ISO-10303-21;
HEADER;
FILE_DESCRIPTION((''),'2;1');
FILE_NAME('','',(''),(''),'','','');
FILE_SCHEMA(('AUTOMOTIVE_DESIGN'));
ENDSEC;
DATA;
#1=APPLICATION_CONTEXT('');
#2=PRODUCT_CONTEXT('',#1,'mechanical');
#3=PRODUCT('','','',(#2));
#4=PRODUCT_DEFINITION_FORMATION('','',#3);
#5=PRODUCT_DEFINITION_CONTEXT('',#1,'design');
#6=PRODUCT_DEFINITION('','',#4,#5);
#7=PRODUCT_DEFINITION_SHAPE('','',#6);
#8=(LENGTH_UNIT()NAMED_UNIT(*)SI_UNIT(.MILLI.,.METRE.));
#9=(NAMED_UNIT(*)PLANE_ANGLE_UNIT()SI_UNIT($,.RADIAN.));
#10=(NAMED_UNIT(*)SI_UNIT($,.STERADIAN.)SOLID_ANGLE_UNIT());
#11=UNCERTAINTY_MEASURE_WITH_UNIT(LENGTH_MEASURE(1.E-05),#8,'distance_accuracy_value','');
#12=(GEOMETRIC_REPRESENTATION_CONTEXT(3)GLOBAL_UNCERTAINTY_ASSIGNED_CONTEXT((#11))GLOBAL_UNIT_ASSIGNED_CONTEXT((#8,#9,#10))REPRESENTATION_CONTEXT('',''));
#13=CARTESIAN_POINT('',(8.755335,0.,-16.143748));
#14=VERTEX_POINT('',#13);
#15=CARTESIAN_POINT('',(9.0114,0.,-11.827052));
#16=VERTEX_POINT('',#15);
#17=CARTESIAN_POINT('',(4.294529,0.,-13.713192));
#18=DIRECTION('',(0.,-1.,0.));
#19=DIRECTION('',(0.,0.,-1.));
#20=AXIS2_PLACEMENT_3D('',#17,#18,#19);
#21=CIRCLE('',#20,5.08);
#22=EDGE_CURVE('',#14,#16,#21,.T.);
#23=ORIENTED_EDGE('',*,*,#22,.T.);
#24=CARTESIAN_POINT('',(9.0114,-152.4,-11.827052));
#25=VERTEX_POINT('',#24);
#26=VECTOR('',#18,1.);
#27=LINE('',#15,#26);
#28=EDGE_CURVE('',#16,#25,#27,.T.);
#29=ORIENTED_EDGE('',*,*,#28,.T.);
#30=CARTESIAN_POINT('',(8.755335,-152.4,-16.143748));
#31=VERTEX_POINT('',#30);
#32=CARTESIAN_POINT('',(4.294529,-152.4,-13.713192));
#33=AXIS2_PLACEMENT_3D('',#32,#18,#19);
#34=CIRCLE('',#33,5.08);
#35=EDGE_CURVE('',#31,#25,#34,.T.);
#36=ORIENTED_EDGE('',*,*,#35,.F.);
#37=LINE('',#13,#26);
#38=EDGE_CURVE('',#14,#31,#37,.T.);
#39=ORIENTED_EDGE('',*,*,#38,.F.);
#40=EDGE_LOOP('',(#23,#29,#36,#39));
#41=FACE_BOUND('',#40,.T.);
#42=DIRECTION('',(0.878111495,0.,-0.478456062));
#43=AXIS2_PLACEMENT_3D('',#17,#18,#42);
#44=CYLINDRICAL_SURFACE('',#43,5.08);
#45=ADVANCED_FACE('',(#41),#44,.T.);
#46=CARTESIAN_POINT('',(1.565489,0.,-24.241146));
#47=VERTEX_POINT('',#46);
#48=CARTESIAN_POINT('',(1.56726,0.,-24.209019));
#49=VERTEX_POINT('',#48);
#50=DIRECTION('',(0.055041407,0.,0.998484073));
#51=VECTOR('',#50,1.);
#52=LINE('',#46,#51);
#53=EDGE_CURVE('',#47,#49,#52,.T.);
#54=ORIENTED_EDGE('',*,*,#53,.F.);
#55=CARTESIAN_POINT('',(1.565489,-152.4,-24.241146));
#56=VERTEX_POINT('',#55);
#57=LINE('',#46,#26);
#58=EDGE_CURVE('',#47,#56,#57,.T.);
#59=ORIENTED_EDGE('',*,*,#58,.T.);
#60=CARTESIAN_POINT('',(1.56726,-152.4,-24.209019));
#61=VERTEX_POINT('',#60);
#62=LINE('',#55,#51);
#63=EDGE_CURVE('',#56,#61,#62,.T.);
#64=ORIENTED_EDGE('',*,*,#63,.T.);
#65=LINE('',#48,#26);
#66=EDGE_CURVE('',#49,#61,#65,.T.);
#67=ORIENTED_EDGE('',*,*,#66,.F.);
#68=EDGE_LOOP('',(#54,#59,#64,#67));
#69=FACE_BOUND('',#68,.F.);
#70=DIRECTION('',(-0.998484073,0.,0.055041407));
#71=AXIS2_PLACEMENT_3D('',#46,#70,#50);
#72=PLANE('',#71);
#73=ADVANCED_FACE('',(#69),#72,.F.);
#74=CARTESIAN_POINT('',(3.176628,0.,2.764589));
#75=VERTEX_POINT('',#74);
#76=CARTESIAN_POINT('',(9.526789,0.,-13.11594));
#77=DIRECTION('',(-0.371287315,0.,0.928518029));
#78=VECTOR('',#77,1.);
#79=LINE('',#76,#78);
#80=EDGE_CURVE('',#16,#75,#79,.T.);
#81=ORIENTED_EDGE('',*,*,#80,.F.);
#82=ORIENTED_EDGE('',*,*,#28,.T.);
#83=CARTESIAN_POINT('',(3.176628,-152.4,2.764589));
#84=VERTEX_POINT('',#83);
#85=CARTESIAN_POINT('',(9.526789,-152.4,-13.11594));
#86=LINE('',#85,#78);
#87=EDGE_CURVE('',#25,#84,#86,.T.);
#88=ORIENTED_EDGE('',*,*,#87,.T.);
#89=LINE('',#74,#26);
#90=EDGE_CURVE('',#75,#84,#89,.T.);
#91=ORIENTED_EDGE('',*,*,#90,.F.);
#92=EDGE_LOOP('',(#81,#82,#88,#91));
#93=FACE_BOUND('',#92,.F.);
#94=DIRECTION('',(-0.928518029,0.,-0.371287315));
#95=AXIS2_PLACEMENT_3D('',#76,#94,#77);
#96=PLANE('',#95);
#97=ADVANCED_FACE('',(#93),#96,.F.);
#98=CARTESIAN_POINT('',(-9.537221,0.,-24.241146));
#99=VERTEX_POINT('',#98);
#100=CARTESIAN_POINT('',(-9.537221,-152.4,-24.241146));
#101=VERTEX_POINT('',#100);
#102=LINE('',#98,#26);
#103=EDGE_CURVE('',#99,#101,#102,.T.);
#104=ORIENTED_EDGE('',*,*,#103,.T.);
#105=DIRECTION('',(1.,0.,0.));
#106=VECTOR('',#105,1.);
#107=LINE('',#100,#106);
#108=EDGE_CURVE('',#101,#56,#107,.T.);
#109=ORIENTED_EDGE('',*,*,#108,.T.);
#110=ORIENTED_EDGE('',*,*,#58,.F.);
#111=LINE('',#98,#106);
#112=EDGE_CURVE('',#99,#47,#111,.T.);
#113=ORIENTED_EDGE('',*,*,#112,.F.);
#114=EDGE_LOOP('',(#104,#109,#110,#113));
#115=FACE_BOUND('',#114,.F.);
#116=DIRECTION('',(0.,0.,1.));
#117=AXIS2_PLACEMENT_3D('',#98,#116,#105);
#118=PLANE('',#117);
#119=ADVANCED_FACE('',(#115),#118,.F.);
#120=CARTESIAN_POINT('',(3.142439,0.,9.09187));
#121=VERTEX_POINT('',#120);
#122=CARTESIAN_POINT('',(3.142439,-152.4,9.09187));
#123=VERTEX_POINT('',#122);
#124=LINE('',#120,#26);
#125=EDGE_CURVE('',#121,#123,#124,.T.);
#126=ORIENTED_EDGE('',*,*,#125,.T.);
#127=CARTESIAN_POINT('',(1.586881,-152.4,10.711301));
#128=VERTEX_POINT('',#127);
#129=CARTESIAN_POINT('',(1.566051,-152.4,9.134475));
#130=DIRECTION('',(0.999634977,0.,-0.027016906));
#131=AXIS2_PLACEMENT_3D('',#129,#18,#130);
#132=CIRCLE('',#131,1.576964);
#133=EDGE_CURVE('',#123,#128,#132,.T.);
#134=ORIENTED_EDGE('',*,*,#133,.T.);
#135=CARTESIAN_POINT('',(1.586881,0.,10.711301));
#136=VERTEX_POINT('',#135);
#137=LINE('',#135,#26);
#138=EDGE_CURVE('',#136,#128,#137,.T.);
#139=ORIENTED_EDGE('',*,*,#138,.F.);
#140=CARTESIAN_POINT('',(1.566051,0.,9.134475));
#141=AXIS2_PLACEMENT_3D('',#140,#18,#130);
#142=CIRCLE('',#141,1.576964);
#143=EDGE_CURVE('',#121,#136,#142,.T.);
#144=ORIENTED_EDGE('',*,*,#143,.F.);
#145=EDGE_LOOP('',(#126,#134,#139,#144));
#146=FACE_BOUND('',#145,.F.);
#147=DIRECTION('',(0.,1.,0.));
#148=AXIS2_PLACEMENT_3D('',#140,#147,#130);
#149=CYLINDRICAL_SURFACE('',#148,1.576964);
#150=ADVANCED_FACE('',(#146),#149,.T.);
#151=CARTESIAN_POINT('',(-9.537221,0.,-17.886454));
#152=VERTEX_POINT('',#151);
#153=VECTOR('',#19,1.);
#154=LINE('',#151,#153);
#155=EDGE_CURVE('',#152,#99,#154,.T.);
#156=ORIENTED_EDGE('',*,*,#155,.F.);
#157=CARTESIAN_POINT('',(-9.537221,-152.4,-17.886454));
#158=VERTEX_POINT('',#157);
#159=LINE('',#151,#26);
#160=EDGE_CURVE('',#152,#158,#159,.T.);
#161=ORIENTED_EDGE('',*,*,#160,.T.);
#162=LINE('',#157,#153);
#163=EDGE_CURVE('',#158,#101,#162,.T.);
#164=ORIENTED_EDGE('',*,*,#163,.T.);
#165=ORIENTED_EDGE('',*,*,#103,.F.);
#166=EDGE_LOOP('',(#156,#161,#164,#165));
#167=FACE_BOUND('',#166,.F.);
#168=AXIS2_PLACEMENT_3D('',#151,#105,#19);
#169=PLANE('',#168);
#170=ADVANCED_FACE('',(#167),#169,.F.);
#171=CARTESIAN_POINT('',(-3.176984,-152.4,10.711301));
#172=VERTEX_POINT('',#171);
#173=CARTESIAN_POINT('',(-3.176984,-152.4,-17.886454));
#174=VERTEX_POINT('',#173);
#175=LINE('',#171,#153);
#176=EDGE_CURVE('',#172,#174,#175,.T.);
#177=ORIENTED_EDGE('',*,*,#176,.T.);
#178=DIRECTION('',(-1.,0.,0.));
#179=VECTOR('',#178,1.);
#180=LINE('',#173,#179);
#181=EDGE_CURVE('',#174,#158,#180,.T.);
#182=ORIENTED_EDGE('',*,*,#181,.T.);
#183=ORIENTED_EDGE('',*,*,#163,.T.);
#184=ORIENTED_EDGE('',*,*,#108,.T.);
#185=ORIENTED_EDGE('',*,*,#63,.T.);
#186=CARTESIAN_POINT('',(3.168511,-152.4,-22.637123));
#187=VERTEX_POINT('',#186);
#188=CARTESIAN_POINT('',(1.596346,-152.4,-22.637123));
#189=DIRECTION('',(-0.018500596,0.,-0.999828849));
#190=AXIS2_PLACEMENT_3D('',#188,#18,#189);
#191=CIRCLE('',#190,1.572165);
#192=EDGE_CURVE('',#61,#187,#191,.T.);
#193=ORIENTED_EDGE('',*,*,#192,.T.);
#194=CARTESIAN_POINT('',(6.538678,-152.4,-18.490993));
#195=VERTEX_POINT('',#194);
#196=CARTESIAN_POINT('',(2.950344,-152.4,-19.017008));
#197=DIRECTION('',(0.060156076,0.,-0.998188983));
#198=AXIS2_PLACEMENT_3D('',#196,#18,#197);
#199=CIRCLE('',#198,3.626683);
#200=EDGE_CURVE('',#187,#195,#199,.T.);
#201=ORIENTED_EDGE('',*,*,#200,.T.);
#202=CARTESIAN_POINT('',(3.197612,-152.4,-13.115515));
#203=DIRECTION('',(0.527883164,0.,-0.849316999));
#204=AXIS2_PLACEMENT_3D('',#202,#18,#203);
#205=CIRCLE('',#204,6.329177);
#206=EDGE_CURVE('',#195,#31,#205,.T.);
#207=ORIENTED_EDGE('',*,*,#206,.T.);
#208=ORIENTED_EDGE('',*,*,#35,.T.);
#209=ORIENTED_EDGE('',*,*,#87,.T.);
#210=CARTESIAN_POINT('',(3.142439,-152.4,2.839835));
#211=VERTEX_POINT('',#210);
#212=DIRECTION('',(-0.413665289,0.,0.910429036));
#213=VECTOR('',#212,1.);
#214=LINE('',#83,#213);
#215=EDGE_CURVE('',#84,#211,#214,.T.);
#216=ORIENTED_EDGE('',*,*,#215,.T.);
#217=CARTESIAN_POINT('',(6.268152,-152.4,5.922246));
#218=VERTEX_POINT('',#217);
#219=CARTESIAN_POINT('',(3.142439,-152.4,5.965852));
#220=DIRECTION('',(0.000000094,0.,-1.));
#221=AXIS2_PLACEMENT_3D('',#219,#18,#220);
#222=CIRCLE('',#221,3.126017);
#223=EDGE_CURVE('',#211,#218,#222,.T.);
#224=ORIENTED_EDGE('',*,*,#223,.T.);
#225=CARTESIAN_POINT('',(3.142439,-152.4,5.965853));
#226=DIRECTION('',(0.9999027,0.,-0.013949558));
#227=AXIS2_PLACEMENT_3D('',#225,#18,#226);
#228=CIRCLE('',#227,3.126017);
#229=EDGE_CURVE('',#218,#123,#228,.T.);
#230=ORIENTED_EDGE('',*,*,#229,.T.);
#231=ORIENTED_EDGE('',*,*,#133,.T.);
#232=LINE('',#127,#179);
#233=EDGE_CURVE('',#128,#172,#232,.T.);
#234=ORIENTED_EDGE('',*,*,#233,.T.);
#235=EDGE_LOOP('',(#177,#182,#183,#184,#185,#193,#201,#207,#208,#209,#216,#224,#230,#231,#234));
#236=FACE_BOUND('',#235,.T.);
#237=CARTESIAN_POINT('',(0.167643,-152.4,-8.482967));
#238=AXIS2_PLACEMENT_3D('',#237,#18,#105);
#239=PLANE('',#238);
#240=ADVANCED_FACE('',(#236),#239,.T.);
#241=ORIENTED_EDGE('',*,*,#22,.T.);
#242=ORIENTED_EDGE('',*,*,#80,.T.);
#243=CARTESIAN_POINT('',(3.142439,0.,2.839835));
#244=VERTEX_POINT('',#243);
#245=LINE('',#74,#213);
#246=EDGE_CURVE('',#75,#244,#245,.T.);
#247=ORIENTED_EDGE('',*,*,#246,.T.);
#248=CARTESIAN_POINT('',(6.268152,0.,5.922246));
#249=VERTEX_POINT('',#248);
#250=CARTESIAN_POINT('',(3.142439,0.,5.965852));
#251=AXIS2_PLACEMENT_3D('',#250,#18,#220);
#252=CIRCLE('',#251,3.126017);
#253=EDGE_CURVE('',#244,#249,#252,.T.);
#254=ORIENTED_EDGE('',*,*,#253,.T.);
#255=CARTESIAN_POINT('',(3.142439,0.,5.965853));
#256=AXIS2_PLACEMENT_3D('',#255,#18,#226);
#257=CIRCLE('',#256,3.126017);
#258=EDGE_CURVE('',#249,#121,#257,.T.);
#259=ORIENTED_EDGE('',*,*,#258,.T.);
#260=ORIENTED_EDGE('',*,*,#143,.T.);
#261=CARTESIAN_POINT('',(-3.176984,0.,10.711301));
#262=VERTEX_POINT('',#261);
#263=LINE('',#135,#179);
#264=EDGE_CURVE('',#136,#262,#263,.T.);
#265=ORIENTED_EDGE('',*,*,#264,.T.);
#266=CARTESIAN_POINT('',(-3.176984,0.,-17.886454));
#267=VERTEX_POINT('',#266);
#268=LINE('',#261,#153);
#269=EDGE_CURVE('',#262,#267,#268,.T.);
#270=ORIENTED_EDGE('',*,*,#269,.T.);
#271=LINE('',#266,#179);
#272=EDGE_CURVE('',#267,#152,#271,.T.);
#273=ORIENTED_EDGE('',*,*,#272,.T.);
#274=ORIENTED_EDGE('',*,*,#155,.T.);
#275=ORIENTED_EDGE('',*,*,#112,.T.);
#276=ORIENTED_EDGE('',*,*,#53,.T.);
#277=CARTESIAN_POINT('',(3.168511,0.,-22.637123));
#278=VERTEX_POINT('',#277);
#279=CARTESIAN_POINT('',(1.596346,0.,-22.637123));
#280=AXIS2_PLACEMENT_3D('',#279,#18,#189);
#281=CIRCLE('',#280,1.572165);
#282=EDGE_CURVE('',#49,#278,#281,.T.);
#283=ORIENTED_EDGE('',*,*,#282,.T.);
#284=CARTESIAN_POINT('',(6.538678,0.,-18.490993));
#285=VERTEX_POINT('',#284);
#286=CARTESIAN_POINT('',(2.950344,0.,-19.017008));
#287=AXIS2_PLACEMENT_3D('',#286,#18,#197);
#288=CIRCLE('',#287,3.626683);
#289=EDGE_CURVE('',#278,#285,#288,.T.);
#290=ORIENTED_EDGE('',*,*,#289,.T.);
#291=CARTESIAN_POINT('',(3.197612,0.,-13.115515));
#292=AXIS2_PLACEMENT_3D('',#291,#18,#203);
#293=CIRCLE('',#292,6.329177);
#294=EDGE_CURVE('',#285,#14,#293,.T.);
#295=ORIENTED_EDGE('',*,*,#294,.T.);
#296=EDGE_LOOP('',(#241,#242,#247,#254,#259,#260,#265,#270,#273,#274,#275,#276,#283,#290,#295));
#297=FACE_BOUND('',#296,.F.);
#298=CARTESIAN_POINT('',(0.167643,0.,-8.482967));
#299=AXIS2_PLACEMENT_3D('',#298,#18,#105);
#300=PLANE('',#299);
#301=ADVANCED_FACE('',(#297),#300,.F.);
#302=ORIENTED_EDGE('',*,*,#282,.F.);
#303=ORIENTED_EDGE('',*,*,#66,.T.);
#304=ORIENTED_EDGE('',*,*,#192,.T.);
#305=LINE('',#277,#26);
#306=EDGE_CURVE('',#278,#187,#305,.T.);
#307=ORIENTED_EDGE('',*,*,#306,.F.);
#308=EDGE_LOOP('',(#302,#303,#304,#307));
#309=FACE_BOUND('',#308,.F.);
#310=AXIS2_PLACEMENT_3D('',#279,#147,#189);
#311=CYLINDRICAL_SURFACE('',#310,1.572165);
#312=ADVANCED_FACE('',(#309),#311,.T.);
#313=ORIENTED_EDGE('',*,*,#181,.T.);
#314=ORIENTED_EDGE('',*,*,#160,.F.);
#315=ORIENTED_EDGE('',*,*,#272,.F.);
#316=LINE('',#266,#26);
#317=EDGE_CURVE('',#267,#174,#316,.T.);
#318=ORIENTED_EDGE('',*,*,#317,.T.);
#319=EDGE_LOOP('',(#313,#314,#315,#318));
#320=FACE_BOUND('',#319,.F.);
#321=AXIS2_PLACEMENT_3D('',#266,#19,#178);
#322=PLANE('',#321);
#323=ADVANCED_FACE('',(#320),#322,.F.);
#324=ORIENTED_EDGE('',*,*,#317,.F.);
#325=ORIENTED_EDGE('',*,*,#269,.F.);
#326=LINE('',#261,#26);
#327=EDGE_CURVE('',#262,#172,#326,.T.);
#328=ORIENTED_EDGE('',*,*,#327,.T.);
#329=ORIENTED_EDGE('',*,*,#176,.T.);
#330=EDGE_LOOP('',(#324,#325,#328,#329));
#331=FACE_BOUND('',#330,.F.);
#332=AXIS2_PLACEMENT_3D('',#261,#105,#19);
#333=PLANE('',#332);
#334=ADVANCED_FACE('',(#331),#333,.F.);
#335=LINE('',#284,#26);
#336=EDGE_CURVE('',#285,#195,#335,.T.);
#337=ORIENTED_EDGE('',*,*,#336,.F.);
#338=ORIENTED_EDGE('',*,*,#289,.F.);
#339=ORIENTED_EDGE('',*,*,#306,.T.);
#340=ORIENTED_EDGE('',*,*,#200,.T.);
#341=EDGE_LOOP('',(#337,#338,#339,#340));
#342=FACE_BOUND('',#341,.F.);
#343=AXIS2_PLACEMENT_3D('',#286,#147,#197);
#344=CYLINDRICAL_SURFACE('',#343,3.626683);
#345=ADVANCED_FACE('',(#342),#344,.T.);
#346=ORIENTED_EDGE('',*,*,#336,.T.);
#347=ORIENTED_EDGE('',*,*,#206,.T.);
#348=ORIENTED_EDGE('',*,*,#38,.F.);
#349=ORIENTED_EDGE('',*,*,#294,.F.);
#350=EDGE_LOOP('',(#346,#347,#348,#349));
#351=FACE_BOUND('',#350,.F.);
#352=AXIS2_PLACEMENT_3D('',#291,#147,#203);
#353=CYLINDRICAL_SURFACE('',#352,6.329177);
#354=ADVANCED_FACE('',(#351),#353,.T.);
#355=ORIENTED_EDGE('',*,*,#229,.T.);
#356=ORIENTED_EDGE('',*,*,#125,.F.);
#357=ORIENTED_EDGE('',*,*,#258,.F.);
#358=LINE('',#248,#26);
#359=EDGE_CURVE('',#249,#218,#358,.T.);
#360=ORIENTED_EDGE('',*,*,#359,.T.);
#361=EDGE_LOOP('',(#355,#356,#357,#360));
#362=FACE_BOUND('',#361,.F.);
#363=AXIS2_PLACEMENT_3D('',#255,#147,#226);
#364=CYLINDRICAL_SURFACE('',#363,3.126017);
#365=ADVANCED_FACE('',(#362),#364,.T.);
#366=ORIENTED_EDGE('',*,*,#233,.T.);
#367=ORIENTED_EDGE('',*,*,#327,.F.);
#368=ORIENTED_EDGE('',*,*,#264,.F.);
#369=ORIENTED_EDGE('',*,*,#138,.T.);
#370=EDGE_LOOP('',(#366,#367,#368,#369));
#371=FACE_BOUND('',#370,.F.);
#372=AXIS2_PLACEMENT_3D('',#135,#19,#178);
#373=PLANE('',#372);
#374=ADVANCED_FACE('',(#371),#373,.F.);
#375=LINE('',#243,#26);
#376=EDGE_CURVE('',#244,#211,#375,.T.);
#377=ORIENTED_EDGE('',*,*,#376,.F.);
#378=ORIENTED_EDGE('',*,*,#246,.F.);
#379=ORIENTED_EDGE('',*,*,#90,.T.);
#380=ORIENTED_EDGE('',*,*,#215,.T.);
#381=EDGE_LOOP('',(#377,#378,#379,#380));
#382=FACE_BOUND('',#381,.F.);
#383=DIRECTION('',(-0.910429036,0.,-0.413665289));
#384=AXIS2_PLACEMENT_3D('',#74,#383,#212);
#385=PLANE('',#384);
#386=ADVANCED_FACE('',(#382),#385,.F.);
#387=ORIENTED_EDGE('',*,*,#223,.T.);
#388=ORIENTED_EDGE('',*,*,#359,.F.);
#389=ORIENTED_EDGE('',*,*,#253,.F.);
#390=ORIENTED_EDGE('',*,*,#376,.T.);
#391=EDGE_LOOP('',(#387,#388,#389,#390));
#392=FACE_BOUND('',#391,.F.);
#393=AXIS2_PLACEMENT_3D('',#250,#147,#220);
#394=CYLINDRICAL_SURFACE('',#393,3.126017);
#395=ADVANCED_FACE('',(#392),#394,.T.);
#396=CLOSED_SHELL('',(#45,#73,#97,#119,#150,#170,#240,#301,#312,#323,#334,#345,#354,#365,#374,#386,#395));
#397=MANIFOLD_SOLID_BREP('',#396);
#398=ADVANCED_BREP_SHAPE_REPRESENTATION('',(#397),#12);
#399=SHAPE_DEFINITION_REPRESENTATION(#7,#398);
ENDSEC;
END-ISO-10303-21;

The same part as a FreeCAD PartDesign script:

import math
import FreeCAD as App
import Part
import Sketcher

V = App.Vector
Q = App.Units.Quantity


def edges_at(feature, points):
    """Names of the edges that pass closest to the given points."""
    edges = feature.Shape.Edges
    near = lambda p: min(range(len(edges)), key=lambda i: edges[i].distToShape(Part.Vertex(*p))[0])
    return sorted({f"Edge{near(p) + 1}" for p in points})

doc = App.newDocument("Part")
params = doc.addObject("Spreadsheet::Sheet", "Params")
for row, (alias, value) in enumerate([
    ("pad1_length", "6 in"),
    ("fillet_radius", "0.2 in"),
], start=1):
    params.set(f"A{row}", alias)
    params.set(f"B{row}", "=" + value)
    params.setAlias(f"B{row}", alias)

body = doc.addObject("PartDesign::Body", "Body")

# Sketch on XZ plane
sketch1 = doc.addObject("Sketcher::SketchObject", "Sketch")
body.addObject(sketch1)
sketch1.AttachmentSupport = (doc.XZ_Plane, [""])
sketch1.MapMode = "FlatFace"
sketch1.addGeometry(Part.LineSegment(V(-9.537, -24.241, 0), V(1.565, -24.241, 0)), False)
sketch1.addGeometry(Part.LineSegment(V(1.565, -24.241, 0), V(1.567, -24.209, 0)), False)
sketch1.addGeometry(Part.ArcOfCircle(Part.Circle(V(1.596, -22.637, 0), V(0, 0, 1), 1.572), math.radians(-91), math.radians(0)), False)
sketch1.addGeometry(Part.ArcOfCircle(Part.Circle(V(2.95, -19.017, 0), V(0, 0, 1), 3.627), math.radians(-87), math.radians(8)), False)
sketch1.addGeometry(Part.ArcOfCircle(Part.Circle(V(3.198, -13.116, 0), V(0, 0, 1), 6.329), math.radians(-58), math.radians(0)), False)
sketch1.addGeometry(Part.LineSegment(V(9.527, -13.116, 0), V(3.177, 2.765, 0)), False)
sketch1.addGeometry(Part.LineSegment(V(3.177, 2.765, 0), V(3.142, 2.84, 0)), False)
sketch1.addGeometry(Part.ArcOfCircle(Part.Circle(V(3.142, 5.966, 0), V(0, 0, 1), 3.126), math.radians(-90), math.radians(-1)), False)
sketch1.addGeometry(Part.ArcOfCircle(Part.Circle(V(3.142, 5.966, 0), V(0, 0, 1), 3.126), math.radians(-1), math.radians(90)), False)
sketch1.addGeometry(Part.ArcOfCircle(Part.Circle(V(1.566, 9.134, 0), V(0, 0, 1), 1.577), math.radians(-2), math.radians(89)), False)
sketch1.addGeometry(Part.LineSegment(V(1.587, 10.711, 0), V(-3.177, 10.711, 0)), False)
sketch1.addGeometry(Part.LineSegment(V(-3.177, 10.711, 0), V(-3.177, -17.886, 0)), False)
sketch1.addGeometry(Part.LineSegment(V(-3.177, -17.886, 0), V(-9.537, -17.886, 0)), False)
sketch1.addGeometry(Part.LineSegment(V(-9.537, -17.886, 0), V(-9.537, -24.241, 0)), False)
sketch1.addConstraint(Sketcher.Constraint("Coincident", 0, 2, 1, 1))
sketch1.addConstraint(Sketcher.Constraint("Coincident", 1, 2, 2, 1))
sketch1.addConstraint(Sketcher.Constraint("Coincident", 2, 2, 3, 1))
sketch1.addConstraint(Sketcher.Constraint("Coincident", 3, 2, 4, 1))
sketch1.addConstraint(Sketcher.Constraint("Coincident", 4, 2, 5, 1))
sketch1.addConstraint(Sketcher.Constraint("Coincident", 5, 2, 6, 1))
sketch1.addConstraint(Sketcher.Constraint("Coincident", 6, 2, 7, 1))
sketch1.addConstraint(Sketcher.Constraint("Tangent", 7, 2, 8, 1))
sketch1.addConstraint(Sketcher.Constraint("Coincident", 8, 2, 9, 1))
sketch1.addConstraint(Sketcher.Constraint("Coincident", 9, 2, 10, 1))
sketch1.addConstraint(Sketcher.Constraint("Coincident", 10, 2, 11, 1))
sketch1.addConstraint(Sketcher.Constraint("Coincident", 11, 2, 12, 1))
sketch1.addConstraint(Sketcher.Constraint("Coincident", 12, 2, 13, 1))
sketch1.addConstraint(Sketcher.Constraint("Coincident", 13, 2, 0, 1))
sketch1.addConstraint(Sketcher.Constraint("Horizontal", 0))
sketch1.addConstraint(Sketcher.Constraint("Horizontal", 10))
sketch1.addConstraint(Sketcher.Constraint("Vertical", 11))
sketch1.addConstraint(Sketcher.Constraint("Horizontal", 12))
sketch1.addConstraint(Sketcher.Constraint("Vertical", 13))
sketch1.addConstraint(Sketcher.Constraint("Equal", 7, 8))
sketch1.addConstraint(Sketcher.Constraint("Vertical", 8, 3, 6, 2))
sketch1.addConstraint(Sketcher.Constraint("Vertical", 6, 2, 8, 2))
sketch1.addConstraint(Sketcher.Constraint("Radius", 2, Q("1.572165 mm")))
sketch1.addConstraint(Sketcher.Constraint("Radius", 3, Q("3.626683 mm")))
sketch1.addConstraint(Sketcher.Constraint("Radius", 4, Q("6.329177 mm")))
sketch1.addConstraint(Sketcher.Constraint("Radius", 7, Q("3.126017 mm")))
sketch1.addConstraint(Sketcher.Constraint("Radius", 9, Q("1.576964 mm")))
sketch1.addConstraint(Sketcher.Constraint("DistanceX", 0, 1, 0, 2, Q("11.10271 mm")))
sketch1.addConstraint(Sketcher.Constraint("DistanceY", -1, 1, 9, 2, Q("10.711301 mm")))
sketch1.addConstraint(Sketcher.Constraint("DistanceY", 0, 2, 7, 3, Q("30.206998 mm")))
sketch1.addConstraint(Sketcher.Constraint("DistanceX", 2, 2, 4, 3, Q("0.029101 mm")))
sketch1.addConstraint(Sketcher.Constraint("DistanceX", 9, 3, 7, 2, Q("4.702101 mm")))
sketch1.addConstraint(Sketcher.Constraint("Distance", 5, Q("17.103092 mm")))
sketch1.addConstraint(Sketcher.Constraint("Distance", 6, Q("0.082649 mm")))
sketch1.addConstraint(Sketcher.Constraint("DistanceX", 10, 2, 10, 1, Q("4.763865 mm")))
sketch1.addConstraint(Sketcher.Constraint("DistanceX", 12, 2, 12, 1, Q("6.360237 mm")))
sketch1.addConstraint(Sketcher.Constraint("DistanceY", 11, 2, 11, 1, Q("28.597755 mm")))
sketch1.addConstraint(Sketcher.Constraint("DistanceY", 13, 2, 13, 1, Q("6.354692 mm")))
sketch1.addConstraint(Sketcher.Constraint("DistanceX", -1, 1, 7, 3, Q("3.142439 mm")))
sketch1.addConstraint(Sketcher.Constraint("DistanceX", -1, 1, 0, 2, Q("1.565489 mm")))
sketch1.addConstraint(Sketcher.Constraint("DistanceX", -1, 1, 1, 2, Q("1.56726 mm")))
sketch1.addConstraint(Sketcher.Constraint("DistanceY", 1, 2, -1, 1, Q("24.209019 mm")))
sketch1.addConstraint(Sketcher.Constraint("DistanceX", -1, 1, 2, 2, Q("3.168511 mm")))
sketch1.addConstraint(Sketcher.Constraint("DistanceX", -1, 1, 3, 2, Q("6.538678 mm")))
sketch1.addConstraint(Sketcher.Constraint("DistanceY", 4, 2, -1, 1, Q("13.11594 mm")))
sketch1.addConstraint(Sketcher.Constraint("DistanceX", 3, 3, 4, 3, Q("0.247268 mm")))
sketch1.addConstraint(Sketcher.Constraint("DistanceY", 3, 3, 7, 3, Q("24.98286 mm")))
pad1 = doc.addObject("PartDesign::Pad", "Pad")
body.addObject(pad1)
pad1.Profile = sketch1
pad1.setExpression("Length", "Params.pad1_length")
doc.recompute()

fillet = doc.addObject("PartDesign::Fillet", "Fillet")
body.addObject(fillet)
fillet.Base = (pad1, edges_at(pad1, [(9.527, -76.2, -13.116)]))
fillet.setExpression("Radius", "Params.fillet_radius")

doc.recompute()
